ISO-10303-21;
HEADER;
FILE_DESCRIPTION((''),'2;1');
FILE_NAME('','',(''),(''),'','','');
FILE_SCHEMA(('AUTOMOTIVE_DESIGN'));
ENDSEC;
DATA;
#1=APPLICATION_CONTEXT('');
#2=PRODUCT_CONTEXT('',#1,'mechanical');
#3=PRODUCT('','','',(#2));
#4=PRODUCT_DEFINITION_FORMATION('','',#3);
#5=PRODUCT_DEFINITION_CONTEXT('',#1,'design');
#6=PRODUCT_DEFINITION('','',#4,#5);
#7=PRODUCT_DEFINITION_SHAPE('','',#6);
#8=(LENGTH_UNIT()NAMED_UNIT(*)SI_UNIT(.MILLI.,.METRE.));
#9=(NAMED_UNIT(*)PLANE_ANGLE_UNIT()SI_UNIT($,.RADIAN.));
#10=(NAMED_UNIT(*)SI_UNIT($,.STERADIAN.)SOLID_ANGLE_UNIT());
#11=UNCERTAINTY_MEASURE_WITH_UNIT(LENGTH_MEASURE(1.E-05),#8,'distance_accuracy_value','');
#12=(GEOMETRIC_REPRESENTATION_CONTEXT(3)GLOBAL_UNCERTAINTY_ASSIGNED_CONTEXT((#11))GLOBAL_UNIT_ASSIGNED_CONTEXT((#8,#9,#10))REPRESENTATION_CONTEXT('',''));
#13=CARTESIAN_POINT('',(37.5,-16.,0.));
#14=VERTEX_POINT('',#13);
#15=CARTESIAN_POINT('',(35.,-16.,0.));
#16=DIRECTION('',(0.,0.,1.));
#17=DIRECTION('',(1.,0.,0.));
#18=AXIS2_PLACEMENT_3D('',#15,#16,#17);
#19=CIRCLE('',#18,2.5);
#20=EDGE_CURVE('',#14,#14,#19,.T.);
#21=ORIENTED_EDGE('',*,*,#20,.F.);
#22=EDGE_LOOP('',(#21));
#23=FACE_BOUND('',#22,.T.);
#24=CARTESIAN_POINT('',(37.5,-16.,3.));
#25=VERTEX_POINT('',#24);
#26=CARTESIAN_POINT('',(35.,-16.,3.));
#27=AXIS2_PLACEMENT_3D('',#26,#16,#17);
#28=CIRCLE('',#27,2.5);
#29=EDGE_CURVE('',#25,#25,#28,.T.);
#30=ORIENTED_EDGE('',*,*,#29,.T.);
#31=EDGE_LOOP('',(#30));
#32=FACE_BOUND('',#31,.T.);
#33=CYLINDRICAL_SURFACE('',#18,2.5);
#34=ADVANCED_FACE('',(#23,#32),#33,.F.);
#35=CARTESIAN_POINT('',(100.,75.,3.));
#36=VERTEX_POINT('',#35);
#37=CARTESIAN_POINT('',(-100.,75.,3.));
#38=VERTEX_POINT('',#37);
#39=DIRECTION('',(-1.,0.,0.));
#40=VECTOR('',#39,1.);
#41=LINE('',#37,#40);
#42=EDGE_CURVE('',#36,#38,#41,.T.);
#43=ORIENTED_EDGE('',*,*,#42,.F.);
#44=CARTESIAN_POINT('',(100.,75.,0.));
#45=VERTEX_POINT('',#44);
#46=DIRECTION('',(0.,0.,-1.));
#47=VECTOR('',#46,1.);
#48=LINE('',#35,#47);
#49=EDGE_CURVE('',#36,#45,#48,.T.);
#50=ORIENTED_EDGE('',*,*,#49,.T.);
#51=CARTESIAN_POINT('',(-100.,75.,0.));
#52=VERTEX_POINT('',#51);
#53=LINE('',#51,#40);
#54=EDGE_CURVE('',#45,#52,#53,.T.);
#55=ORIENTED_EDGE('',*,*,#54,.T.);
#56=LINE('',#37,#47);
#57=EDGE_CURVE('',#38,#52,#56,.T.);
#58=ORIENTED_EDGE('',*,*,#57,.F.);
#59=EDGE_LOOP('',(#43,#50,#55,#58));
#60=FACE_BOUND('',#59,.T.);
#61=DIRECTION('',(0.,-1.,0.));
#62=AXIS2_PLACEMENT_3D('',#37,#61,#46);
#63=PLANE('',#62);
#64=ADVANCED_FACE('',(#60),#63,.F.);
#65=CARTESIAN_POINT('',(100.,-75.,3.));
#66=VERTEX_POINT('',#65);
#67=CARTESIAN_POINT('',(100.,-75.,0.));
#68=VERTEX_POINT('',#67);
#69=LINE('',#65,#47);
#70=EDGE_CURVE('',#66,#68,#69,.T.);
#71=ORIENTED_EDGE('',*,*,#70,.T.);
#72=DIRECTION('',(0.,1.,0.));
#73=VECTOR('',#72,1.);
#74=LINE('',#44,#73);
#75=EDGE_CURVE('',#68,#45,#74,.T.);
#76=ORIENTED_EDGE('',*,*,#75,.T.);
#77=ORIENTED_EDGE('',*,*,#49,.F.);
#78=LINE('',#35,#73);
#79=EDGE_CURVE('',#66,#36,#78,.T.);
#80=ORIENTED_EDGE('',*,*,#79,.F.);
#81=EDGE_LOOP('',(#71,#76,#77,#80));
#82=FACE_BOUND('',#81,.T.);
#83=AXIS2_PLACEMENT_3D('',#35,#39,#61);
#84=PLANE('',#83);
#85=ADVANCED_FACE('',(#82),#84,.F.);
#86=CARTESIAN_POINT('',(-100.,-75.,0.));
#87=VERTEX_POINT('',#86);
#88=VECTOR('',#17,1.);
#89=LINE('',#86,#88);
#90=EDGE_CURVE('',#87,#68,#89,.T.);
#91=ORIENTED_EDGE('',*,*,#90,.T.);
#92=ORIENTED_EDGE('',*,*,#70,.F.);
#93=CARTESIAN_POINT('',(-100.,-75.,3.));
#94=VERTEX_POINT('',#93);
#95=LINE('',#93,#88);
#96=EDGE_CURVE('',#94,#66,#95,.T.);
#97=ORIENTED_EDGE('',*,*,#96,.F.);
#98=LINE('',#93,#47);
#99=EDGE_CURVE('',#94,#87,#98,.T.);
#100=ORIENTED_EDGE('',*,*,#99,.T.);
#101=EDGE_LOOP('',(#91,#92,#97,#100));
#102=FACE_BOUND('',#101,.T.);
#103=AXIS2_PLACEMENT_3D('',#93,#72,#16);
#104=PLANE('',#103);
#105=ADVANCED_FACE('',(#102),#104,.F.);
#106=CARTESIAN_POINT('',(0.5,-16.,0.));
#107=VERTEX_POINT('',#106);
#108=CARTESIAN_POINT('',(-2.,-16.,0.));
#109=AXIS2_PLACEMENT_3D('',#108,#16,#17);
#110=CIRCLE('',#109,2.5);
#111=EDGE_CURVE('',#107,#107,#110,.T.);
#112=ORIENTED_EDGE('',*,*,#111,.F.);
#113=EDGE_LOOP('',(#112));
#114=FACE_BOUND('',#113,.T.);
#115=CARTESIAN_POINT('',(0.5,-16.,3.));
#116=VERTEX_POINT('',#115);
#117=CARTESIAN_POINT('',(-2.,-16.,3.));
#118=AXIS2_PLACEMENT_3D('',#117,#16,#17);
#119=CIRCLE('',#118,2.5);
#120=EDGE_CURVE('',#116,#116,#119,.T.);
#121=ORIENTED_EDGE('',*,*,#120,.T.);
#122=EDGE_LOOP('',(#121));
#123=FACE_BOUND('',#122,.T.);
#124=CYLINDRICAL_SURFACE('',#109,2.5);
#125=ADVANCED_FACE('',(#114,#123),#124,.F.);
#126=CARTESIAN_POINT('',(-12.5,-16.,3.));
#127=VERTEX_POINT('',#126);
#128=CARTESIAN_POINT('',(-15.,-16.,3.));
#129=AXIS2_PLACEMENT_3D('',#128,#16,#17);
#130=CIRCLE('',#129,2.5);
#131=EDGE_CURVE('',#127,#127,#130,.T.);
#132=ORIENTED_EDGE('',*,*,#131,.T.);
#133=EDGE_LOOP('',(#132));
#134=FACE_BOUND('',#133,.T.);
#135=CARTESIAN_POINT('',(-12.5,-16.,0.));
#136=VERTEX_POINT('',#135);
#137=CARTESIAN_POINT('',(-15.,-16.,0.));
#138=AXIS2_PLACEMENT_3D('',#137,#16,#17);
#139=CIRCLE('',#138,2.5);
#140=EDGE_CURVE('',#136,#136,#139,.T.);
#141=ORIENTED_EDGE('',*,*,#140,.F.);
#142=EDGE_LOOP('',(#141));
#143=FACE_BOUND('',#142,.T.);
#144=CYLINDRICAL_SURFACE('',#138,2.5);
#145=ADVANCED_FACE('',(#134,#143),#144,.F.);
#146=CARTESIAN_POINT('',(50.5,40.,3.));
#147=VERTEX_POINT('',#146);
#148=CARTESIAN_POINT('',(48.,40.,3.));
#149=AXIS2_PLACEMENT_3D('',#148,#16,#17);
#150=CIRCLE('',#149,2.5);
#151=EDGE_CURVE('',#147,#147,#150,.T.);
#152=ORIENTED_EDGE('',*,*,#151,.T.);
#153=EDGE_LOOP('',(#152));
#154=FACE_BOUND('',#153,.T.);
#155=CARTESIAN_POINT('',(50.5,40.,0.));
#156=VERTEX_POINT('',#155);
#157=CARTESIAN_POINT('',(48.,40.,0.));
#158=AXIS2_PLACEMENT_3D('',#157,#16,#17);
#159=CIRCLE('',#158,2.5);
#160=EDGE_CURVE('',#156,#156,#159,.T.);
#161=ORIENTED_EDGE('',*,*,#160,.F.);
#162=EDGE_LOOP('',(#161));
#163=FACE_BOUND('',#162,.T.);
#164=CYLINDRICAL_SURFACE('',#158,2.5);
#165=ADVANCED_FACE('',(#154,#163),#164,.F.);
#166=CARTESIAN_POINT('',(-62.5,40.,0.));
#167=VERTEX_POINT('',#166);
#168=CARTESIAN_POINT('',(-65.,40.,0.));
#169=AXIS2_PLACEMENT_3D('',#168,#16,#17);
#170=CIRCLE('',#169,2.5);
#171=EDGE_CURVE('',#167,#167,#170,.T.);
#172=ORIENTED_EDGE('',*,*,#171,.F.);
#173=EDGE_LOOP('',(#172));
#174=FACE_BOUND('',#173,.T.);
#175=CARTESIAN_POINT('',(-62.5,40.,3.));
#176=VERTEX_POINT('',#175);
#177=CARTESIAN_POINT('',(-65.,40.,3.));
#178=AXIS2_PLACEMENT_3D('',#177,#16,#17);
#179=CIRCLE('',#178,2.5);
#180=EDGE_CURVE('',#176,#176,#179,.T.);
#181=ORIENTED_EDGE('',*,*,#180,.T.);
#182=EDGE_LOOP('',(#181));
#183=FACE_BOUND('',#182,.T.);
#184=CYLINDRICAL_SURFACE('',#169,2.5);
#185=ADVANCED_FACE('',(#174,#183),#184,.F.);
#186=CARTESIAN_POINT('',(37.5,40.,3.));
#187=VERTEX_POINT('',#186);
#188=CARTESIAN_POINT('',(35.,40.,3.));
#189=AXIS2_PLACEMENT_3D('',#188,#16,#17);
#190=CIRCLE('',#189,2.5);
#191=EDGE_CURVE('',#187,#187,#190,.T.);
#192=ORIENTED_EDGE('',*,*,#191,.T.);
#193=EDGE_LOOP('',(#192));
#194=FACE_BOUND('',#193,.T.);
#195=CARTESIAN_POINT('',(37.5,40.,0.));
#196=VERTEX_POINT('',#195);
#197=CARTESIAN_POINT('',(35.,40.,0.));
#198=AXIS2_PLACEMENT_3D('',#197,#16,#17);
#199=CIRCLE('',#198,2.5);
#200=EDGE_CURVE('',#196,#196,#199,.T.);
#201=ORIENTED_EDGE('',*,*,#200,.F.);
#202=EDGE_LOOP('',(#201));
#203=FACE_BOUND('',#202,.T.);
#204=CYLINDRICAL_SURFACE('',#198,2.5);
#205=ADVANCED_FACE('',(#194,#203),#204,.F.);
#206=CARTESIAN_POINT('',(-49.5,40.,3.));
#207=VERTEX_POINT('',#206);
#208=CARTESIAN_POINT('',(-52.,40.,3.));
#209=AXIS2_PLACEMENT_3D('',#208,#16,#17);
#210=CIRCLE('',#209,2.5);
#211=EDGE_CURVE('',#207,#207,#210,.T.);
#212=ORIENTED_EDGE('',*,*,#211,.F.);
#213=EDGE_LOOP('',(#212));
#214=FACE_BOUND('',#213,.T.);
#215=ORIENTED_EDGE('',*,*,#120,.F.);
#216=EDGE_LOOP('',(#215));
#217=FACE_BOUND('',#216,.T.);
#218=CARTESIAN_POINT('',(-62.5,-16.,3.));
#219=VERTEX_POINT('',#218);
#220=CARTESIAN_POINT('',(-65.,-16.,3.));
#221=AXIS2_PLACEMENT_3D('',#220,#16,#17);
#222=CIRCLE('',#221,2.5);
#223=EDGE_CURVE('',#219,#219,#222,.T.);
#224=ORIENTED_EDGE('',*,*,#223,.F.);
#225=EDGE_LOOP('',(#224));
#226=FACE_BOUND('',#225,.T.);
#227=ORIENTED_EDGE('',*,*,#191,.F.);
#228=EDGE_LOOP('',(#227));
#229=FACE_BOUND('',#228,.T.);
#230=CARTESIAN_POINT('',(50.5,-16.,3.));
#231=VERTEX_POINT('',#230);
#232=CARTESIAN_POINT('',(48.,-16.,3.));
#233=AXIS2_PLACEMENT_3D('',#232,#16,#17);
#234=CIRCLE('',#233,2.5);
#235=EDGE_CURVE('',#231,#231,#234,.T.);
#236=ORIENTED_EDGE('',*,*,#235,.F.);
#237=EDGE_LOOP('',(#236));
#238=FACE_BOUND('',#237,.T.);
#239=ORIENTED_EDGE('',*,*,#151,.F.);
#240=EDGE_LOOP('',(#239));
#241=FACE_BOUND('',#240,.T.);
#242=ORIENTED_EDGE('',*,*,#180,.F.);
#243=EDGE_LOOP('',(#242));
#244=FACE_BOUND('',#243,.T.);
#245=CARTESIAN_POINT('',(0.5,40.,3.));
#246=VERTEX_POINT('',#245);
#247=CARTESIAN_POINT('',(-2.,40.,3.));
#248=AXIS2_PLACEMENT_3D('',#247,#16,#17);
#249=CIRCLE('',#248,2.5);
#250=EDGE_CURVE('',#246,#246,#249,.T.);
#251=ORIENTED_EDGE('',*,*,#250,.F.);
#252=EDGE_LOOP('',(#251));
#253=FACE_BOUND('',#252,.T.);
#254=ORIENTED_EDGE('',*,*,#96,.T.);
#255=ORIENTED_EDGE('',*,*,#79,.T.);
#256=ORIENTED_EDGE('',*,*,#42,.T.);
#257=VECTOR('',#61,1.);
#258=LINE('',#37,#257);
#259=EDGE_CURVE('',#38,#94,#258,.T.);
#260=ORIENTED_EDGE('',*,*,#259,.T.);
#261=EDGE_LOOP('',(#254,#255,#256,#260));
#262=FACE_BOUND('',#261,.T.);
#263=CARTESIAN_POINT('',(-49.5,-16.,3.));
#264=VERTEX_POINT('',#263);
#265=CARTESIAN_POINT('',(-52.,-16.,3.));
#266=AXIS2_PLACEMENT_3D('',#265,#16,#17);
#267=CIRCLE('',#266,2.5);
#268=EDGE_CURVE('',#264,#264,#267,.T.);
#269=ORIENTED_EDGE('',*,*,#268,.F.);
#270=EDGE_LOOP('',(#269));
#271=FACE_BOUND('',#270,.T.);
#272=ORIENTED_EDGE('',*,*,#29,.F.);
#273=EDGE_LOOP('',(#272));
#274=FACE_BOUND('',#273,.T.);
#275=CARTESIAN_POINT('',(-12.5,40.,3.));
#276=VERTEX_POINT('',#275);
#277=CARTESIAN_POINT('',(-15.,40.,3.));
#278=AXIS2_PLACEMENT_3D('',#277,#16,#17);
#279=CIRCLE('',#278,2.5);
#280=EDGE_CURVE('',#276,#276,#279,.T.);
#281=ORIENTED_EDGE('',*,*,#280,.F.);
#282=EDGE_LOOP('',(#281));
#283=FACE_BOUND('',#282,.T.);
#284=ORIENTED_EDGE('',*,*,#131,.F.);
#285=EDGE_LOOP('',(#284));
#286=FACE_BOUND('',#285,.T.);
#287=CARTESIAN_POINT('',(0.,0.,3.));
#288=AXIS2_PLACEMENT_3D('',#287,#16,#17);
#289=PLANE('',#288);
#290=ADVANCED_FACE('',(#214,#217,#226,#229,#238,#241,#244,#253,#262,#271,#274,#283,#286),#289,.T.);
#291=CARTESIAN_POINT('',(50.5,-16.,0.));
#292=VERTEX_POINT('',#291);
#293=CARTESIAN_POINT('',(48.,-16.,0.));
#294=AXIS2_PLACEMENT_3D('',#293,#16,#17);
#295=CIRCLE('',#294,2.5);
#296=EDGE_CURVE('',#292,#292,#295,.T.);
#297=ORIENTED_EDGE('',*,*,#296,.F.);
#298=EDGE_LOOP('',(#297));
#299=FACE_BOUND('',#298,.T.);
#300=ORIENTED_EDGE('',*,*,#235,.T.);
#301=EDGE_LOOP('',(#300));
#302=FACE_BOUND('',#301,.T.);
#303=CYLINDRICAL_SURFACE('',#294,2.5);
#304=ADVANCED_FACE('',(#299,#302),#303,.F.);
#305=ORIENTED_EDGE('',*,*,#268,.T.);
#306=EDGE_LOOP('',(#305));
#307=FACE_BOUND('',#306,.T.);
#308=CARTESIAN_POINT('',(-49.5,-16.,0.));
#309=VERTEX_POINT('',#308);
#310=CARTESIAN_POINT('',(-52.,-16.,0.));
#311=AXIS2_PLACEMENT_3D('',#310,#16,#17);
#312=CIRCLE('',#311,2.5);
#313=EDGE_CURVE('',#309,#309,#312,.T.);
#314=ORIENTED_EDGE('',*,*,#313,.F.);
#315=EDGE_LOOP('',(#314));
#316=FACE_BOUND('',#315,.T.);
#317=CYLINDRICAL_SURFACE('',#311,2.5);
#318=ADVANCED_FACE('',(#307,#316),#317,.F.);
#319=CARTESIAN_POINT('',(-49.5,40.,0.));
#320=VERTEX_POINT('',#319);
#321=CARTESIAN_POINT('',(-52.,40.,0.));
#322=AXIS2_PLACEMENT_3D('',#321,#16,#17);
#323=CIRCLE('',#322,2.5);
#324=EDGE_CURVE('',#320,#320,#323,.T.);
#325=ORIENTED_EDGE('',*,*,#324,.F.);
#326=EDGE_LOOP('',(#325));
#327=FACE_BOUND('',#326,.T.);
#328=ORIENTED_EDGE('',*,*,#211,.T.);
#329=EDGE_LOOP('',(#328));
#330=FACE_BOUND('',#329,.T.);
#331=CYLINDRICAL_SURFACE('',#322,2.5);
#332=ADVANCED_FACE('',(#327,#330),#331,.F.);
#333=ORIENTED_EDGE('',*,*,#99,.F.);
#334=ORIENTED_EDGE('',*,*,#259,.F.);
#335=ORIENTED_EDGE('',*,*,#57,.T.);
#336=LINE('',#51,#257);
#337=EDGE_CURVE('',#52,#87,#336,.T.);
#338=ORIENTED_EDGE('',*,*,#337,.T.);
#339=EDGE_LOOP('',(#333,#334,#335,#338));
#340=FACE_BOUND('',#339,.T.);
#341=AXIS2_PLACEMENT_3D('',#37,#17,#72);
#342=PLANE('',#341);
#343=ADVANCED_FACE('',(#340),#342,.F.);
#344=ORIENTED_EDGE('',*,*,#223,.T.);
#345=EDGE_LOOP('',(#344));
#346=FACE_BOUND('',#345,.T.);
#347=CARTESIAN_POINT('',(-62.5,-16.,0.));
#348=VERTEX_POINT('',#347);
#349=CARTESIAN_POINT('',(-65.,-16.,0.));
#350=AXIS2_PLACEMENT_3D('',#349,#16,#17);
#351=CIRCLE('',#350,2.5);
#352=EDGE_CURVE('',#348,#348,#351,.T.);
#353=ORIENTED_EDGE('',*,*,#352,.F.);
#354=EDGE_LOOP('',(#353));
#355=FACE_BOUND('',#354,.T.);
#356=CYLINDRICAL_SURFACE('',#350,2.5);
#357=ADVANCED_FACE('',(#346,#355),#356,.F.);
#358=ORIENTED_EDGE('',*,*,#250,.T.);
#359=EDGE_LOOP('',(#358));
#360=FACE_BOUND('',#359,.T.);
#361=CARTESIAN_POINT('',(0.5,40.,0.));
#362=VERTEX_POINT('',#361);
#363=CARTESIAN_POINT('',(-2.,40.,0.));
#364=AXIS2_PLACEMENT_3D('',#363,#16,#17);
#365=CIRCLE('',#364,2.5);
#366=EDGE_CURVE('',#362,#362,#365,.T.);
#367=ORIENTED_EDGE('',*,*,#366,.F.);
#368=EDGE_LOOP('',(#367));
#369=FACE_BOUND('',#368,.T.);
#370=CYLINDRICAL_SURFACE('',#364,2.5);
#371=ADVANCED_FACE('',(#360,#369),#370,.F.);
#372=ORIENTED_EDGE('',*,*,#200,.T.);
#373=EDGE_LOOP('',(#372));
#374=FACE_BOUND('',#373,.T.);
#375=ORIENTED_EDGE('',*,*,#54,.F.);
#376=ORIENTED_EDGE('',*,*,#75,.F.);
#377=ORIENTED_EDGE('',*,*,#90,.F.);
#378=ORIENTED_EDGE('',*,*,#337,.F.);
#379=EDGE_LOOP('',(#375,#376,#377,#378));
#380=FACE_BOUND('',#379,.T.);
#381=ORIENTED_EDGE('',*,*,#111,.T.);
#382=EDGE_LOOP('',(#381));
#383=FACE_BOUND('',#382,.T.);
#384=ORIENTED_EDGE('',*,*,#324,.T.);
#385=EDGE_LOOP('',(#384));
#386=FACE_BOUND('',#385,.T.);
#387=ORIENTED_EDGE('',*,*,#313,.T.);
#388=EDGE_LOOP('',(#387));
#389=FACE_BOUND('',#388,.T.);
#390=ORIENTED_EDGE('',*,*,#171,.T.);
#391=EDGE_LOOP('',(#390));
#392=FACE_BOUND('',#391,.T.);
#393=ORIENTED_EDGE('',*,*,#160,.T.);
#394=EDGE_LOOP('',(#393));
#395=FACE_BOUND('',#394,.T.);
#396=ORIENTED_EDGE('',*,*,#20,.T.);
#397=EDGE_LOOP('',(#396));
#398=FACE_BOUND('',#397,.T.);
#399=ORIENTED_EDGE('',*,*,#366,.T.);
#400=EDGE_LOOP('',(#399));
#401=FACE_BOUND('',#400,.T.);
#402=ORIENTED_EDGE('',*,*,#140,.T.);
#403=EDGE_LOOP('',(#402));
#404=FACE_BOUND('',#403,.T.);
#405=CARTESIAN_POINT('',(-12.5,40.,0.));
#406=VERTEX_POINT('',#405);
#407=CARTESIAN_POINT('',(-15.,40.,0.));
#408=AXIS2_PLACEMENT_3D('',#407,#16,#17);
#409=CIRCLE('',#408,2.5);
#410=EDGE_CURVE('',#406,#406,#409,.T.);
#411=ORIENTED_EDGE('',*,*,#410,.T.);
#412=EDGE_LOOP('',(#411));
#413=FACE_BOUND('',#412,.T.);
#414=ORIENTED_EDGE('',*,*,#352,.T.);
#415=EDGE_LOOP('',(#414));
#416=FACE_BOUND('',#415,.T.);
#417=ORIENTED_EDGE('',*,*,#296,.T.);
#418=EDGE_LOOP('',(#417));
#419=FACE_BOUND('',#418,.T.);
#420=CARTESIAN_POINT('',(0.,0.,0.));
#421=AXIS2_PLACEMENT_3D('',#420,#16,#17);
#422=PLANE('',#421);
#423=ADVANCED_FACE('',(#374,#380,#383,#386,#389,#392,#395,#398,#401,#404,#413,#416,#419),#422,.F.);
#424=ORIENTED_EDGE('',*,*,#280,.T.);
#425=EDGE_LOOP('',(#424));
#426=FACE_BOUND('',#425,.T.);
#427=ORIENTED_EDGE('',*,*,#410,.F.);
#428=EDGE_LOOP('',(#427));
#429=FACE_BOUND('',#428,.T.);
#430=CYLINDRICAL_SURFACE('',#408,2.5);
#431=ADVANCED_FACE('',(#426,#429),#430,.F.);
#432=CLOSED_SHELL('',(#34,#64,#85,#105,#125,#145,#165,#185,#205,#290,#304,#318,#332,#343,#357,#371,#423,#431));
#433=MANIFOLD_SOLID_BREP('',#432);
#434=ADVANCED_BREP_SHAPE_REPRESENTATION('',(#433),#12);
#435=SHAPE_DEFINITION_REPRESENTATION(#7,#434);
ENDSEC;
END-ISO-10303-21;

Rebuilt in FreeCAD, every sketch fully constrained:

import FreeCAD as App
import Part
import Sketcher


def add_polygon(sketch, points):
    """Adds a closed chain of lines whose ends are joined by coincident constraints."""
    first, n = sketch.GeometryCount, len(points)
    for a, b in zip(points, points[1:] + points[:1]):
        sketch.addGeometry(Part.LineSegment(App.Vector(*a, 0), App.Vector(*b, 0)), False)
    for i in range(n):
        sketch.addConstraint(Sketcher.Constraint("Coincident", first + i, 2, first + (i + 1) % n, 1))

doc = App.newDocument("Part")
params = doc.addObject("Spreadsheet::Sheet", "Params")
for row, (alias, value) in enumerate([
    ("sketch1_width", "200 mm"),
    ("sketch1_height", "150 mm"),
    ("pad1_length", "3 mm"),
    ("sketch2_diameter", "5 mm"),
], start=1):
    params.set(f"A{row}", alias)
    params.set(f"B{row}", "=" + value)
    params.setAlias(f"B{row}", alias)

body = doc.addObject("PartDesign::Body", "Body")

# Sketch on XY plane
sketch1 = body.newObject("Sketcher::SketchObject", "Sketch")
sketch1.AttachmentSupport = (doc.getObject("XY_Plane"), [""])
sketch1.MapMode = "FlatFace"
add_polygon(sketch1, [(-100, 75), (-100, -75), (100, -75), (100, 75)])  # lines 0-3
sketch1.addConstraint(Sketcher.Constraint("Vertical", 0))
sketch1.addConstraint(Sketcher.Constraint("Horizontal", 1))
sketch1.addConstraint(Sketcher.Constraint("Vertical", 2))
sketch1.addConstraint(Sketcher.Constraint("Horizontal", 3))
sketch1.addConstraint(Sketcher.Constraint("Symmetric", 0, 2, 2, 2, -1, 1))
sketch1.addConstraint(Sketcher.Constraint("DistanceX", 1, 1, 1, 2, 200.0))
sketch1.addConstraint(Sketcher.Constraint("DistanceY", 0, 2, 0, 1, 150.0))
sketch1.setExpression("Constraints[9]", "Params.sketch1_width")
sketch1.setExpression("Constraints[10]", "Params.sketch1_height")
pad1 = body.newObject("PartDesign::Pad", "Pad")
pad1.Profile = sketch1
pad1.setExpression("Length", "Params.pad1_length")

# Sketch on XY plane
sketch2 = body.newObject("Sketcher::SketchObject", "Sketch001")
sketch2.AttachmentSupport = (doc.getObject("XY_Plane"), [""])
sketch2.MapMode = "FlatFace"
sketch2.AttachmentOffset = App.Placement(App.Vector(0, 0, 3), App.Rotation())
sketch2.addGeometry(Part.Circle(App.Vector(-65, 40, 0), App.Vector(0, 0, 1), 2.5), False)
sketch2.addGeometry(Part.Circle(App.Vector(-52, 40, 0), App.Vector(0, 0, 1), 2.5), False)
sketch2.addGeometry(Part.Circle(App.Vector(-52, -16, 0), App.Vector(0, 0, 1), 2.5), False)
sketch2.addGeometry(Part.Circle(App.Vector(-65, -16, 0), App.Vector(0, 0, 1), 2.5), False)
sketch2.addGeometry(Part.Circle(App.Vector(-15, -16, 0), App.Vector(0, 0, 1), 2.5), False)
sketch2.addGeometry(Part.Circle(App.Vector(-2, -16, 0), App.Vector(0, 0, 1), 2.5), False)
sketch2.addGeometry(Part.Circle(App.Vector(-2, 40, 0), App.Vector(0, 0, 1), 2.5), False)
sketch2.addGeometry(Part.Circle(App.Vector(-15, 40, 0), App.Vector(0, 0, 1), 2.5), False)
sketch2.addGeometry(Part.Circle(App.Vector(35, 40, 0), App.Vector(0, 0, 1), 2.5), False)
sketch2.addGeometry(Part.Circle(App.Vector(48, 40, 0), App.Vector(0, 0, 1), 2.5), False)
sketch2.addGeometry(Part.Circle(App.Vector(48, -16, 0), App.Vector(0, 0, 1), 2.5), False)
sketch2.addGeometry(Part.Circle(App.Vector(35, -16, 0), App.Vector(0, 0, 1), 2.5), False)
sketch2.addConstraint(Sketcher.Constraint("Equal", 0, 1))
sketch2.addConstraint(Sketcher.Constraint("Equal", 1, 2))
sketch2.addConstraint(Sketcher.Constraint("Equal", 2, 3))
sketch2.addConstraint(Sketcher.Constraint("Equal", 3, 4))
sketch2.addConstraint(Sketcher.Constraint("Equal", 4, 5))
sketch2.addConstraint(Sketcher.Constraint("Equal", 5, 6))
sketch2.addConstraint(Sketcher.Constraint("Equal", 6, 7))
sketch2.addConstraint(Sketcher.Constraint("Equal", 7, 8))
sketch2.addConstraint(Sketcher.Constraint("Equal", 8, 9))
sketch2.addConstraint(Sketcher.Constraint("Equal", 9, 10))
sketch2.addConstraint(Sketcher.Constraint("Equal", 10, 11))
sketch2.addConstraint(Sketcher.Constraint("Horizontal", 0, 3, 1, 3))
sketch2.addConstraint(Sketcher.Constraint("Horizontal", 2, 3, 3, 3))
sketch2.addConstraint(Sketcher.Constraint("Horizontal", 3, 3, 4, 3))
sketch2.addConstraint(Sketcher.Constraint("Horizontal", 4, 3, 5, 3))
sketch2.addConstraint(Sketcher.Constraint("Horizontal", 1, 3, 6, 3))
sketch2.addConstraint(Sketcher.Constraint("Horizontal", 6, 3, 7, 3))
sketch2.addConstraint(Sketcher.Constraint("Horizontal", 7, 3, 8, 3))
sketch2.addConstraint(Sketcher.Constraint("Horizontal", 8, 3, 9, 3))
sketch2.addConstraint(Sketcher.Constraint("Horizontal", 5, 3, 10, 3))
sketch2.addConstraint(Sketcher.Constraint("Horizontal", 10, 3, 11, 3))
sketch2.addConstraint(Sketcher.Constraint("Vertical", 1, 3, 2, 3))
sketch2.addConstraint(Sketcher.Constraint("Vertical", 0, 3, 3, 3))
sketch2.addConstraint(Sketcher.Constraint("Vertical", 5, 3, 6, 3))
sketch2.addConstraint(Sketcher.Constraint("Vertical", 4, 3, 7, 3))
sketch2.addConstraint(Sketcher.Constraint("Vertical", 9, 3, 10, 3))
sketch2.addConstraint(Sketcher.Constraint("Vertical", 8, 3, 11, 3))
sketch2.addConstraint(Sketcher.Constraint("Diameter", 0, 5.0))
sketch2.addConstraint(Sketcher.Constraint("DistanceX", 0, 3, -1, 1, 65.0))
sketch2.addConstraint(Sketcher.Constraint("DistanceY", -1, 1, 0, 3, 40.0))
sketch2.addConstraint(Sketcher.Constraint("DistanceX", 1, 3, -1, 1, 52.0))
sketch2.addConstraint(Sketcher.Constraint("DistanceY", 2, 3, -1, 1, 16.0))
sketch2.addConstraint(Sketcher.Constraint("DistanceX", 4, 3, -1, 1, 15.0))
sketch2.addConstraint(Sketcher.Constraint("DistanceX", 5, 3, -1, 1, 2.0))
sketch2.addConstraint(Sketcher.Constraint("DistanceX", -1, 1, 8, 3, 35.0))
sketch2.addConstraint(Sketcher.Constraint("DistanceX", -1, 1, 9, 3, 48.0))
sketch2.setExpression("Constraints[27]", "Params.sketch2_diameter")
pocket1 = body.newObject("PartDesign::Pocket", "Pocket")
pocket1.Profile = sketch2
pocket1.Type = "ThroughAll"

doc.recompute()
